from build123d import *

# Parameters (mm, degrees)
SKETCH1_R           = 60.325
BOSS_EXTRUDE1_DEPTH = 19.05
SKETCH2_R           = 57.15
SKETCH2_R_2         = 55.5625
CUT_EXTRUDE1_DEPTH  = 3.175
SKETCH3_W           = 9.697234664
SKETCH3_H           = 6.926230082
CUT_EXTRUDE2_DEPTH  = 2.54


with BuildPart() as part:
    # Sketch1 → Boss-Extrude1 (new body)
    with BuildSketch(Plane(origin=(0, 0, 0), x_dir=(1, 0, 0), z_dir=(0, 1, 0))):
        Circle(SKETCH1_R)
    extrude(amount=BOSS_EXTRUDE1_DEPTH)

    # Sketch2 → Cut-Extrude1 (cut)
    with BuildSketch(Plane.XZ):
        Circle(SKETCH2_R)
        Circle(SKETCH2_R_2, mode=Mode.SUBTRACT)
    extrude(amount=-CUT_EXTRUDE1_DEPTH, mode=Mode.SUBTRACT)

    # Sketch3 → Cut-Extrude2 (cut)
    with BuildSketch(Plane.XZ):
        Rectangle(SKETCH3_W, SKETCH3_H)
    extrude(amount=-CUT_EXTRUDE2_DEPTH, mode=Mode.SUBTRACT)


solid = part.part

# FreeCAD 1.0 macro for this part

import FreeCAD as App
import Part
import Sketcher

V = App.Vector
Q = App.Units.Quantity


def add_polygon(sketch, points):
    """Adds a closed chain of lines whose ends are joined by coincident constraints."""
    first, n = sketch.GeometryCount, len(points)
    for a, b in zip(points, points[1:] + points[:1]):
        sketch.addGeometry(Part.LineSegment(App.Vector(*a, 0), App.Vector(*b, 0)), False)
    for i in range(n):
        sketch.addConstraint(Sketcher.Constraint("Coincident", first + i, 2, first + (i + 1) % n, 1))

doc = App.newDocument("Part")
body = doc.addObject("PartDesign::Body", "Body")

# Sketch on XZ plane
sketch1 = body.newObject("Sketcher::SketchObject", "Sketch")
sketch1.AttachmentSupport = (doc.getObject("XZ_Plane"), [""])
sketch1.MapMode = "FlatFace"
sketch1.addGeometry(Part.Circle(V(0, 0, 0), V(0, 0, 1), 60.325), False)
sketch1.addConstraint([
    Sketcher.Constraint("Coincident", 0, 3, -1, 1),
    Sketcher.Constraint("Diameter", 0, Q("4.75 in")),
])
pad1 = body.newObject("PartDesign::Pad", "Pad")
pad1.Profile = sketch1
pad1.Length = Q("0.75 in")
pad1.Reversed = True

# Sketch on XZ plane
sketch2 = body.newObject("Sketcher::SketchObject", "Sketch001")
sketch2.AttachmentSupport = (doc.getObject("XZ_Plane"), [""])
sketch2.MapMode = "FlatFace"
sketch2.addGeometry([
    Part.Circle(V(0, 0, 0), V(0, 0, 1), 57.15),
    Part.Circle(V(0, 0, 0), V(0, 0, 1), 55.5625),
], False)
sketch2.addConstraint([
    Sketcher.Constraint("Coincident", 0, 3, -1, 1),
    Sketcher.Constraint("Coincident", 1, 3, -1, 1),
    Sketcher.Constraint("Diameter", 0, Q("4.5 in")),
    Sketcher.Constraint("Diameter", 1, Q("4.375 in")),
])
pocket1 = body.newObject("PartDesign::Pocket", "Pocket")
pocket1.Profile = sketch2
pocket1.Length = Q("0.125 in")

# Sketch on XZ plane
sketch3 = body.newObject("Sketcher::SketchObject", "Sketch002")
sketch3.AttachmentSupport = (doc.getObject("XZ_Plane"), [""])
sketch3.MapMode = "FlatFace"
add_polygon(sketch3, [(-4.848617, 3.463115), (-4.848617, -3.463115), (4.848617, -3.463115), (4.848617, 3.463115)])  # lines 0-3
sketch3.addConstraint([
    Sketcher.Constraint("Vertical", 0),
    Sketcher.Constraint("Horizontal", 1),
    Sketcher.Constraint("Vertical", 2),
    Sketcher.Constraint("Horizontal", 3),
    Sketcher.Constraint("Symmetric", 0, 2, 2, 2, -1, 1),
    Sketcher.Constraint("DistanceY", 0, 2, 0, 1, 6.92623),
    Sketcher.Constraint("DistanceX", 1, 1, 1, 2, 9.697235),
])
pocket2 = body.newObject("PartDesign::Pocket", "Pocket001")
pocket2.Profile = sketch3
pocket2.Length = Q("0.1 in")

doc.recompute()
